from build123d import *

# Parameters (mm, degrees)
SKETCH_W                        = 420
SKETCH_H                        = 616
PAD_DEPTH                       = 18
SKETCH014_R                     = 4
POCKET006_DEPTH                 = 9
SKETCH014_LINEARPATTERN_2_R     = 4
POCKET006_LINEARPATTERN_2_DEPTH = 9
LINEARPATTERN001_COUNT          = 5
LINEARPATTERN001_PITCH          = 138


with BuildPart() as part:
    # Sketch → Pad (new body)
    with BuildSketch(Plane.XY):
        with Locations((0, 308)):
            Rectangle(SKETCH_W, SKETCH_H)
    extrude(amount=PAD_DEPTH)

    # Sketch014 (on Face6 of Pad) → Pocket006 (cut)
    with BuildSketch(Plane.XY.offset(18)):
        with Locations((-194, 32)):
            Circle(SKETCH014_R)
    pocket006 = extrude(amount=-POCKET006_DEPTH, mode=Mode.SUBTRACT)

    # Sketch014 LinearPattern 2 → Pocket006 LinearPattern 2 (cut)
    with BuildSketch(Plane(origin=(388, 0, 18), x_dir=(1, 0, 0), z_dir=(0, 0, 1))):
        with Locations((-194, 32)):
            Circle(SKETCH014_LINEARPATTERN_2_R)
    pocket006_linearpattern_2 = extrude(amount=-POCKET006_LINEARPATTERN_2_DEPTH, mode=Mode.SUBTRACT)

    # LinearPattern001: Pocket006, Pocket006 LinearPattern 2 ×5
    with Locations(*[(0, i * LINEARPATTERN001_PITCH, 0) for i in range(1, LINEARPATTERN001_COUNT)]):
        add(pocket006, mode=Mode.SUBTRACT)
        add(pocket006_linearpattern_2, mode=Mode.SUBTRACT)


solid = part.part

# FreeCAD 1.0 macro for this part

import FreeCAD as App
import Part
import Sketcher
from FreeCAD import Vector
Q = App.Units.Quantity


def add_polygon(sketch, points):
    """Adds a closed chain of lines whose ends are joined by coincident constraints."""
    first, n = sketch.GeometryCount, len(points)
    for a, b in zip(points, points[1:] + points[:1]):
        sketch.addGeometry(Part.LineSegment(App.Vector(*a, 0), App.Vector(*b, 0)), False)
    for i in range(n):
        sketch.addConstraint(Sketcher.Constraint("Coincident", first + i, 2, first + (i + 1) % n, 1))

doc = App.newDocument("Part")
body = doc.addObject("PartDesign::Body", "Body")

# Sketch on XY plane
sketch1 = body.newObject("Sketcher::SketchObject", "Sketch")
sketch1.AttachmentSupport = (doc.getObject("XY_Plane"), [""])
sketch1.MapMode = "FlatFace"
add_polygon(sketch1, [(-210, 616), (-210, 0), (210, 0), (210, 616)])  # lines 0-3
sketch1.addConstraint(Sketcher.Constraint("Vertical", 0))
sketch1.addConstraint(Sketcher.Constraint("Horizontal", 1))
sketch1.addConstraint(Sketcher.Constraint("Vertical", 2))
sketch1.addConstraint(Sketcher.Constraint("Horizontal", 3))
sketch1.addConstraint(Sketcher.Constraint("Symmetric", 0, 2, 1, 2, -1, 1))
sketch1.addConstraint(Sketcher.Constraint("DistanceX", 1, 1, 1, 2, Q("420 mm")))
sketch1.addConstraint(Sketcher.Constraint("DistanceY", 0, 2, 0, 1, Q("616 mm")))
pad1 = body.newObject("PartDesign::Pad", "Pad")
pad1.Profile = sketch1
pad1.Length = 18

# Sketch on XY plane
sketch2 = body.newObject("Sketcher::SketchObject", "Sketch001")
sketch2.AttachmentSupport = (doc.getObject("XY_Plane"), [""])
sketch2.MapMode = "FlatFace"
sketch2.AttachmentOffset = App.Placement(Vector(0, 0, 18), App.Rotation())
sketch2.addGeometry(Part.Circle(Vector(-194, 32, 0), Vector(0, 0, 1), 4), False)
sketch2.addConstraint(Sketcher.Constraint("Diameter", 0, Q("8 mm")))
sketch2.addConstraint(Sketcher.Constraint("DistanceX", 0, 3, -1, 1, Q("194 mm")))
sketch2.addConstraint(Sketcher.Constraint("DistanceY", -1, 1, 0, 3, Q("32 mm")))
pocket1 = body.newObject("PartDesign::Pocket", "Pocket")
pocket1.Profile = sketch2
pocket1.Length = 9

# Sketch on XY plane
sketch3 = body.newObject("Sketcher::SketchObject", "Sketch002")
sketch3.AttachmentSupport = (doc.getObject("XY_Plane"), [""])
sketch3.MapMode = "FlatFace"
sketch3.AttachmentOffset = App.Placement(Vector(0, 0, 18), App.Rotation())
sketch3.addGeometry(Part.Circle(Vector(194, 32, 0), Vector(0, 0, 1), 4), False)
sketch3.addConstraint(Sketcher.Constraint("Diameter", 0, Q("8 mm")))
sketch3.addConstraint(Sketcher.Constraint("DistanceX", -1, 1, 0, 3, Q("194 mm")))
sketch3.addConstraint(Sketcher.Constraint("DistanceY", -1, 1, 0, 3, Q("32 mm")))
pocket2 = body.newObject("PartDesign::Pocket", "Pocket001")
pocket2.Profile = sketch3
pocket2.Length = 9
doc.recompute()

linearpattern = body.newObject("PartDesign::LinearPattern", "LinearPattern")
linearpattern.Originals = [pocket1, pocket2]
linearpattern.Direction = (doc.getObject("Y_Axis"), [""])
linearpattern.Mode = "offset"
linearpattern.Offset = 138
linearpattern.Occurrences = 5
body.Tip = linearpattern

doc.recompute()
